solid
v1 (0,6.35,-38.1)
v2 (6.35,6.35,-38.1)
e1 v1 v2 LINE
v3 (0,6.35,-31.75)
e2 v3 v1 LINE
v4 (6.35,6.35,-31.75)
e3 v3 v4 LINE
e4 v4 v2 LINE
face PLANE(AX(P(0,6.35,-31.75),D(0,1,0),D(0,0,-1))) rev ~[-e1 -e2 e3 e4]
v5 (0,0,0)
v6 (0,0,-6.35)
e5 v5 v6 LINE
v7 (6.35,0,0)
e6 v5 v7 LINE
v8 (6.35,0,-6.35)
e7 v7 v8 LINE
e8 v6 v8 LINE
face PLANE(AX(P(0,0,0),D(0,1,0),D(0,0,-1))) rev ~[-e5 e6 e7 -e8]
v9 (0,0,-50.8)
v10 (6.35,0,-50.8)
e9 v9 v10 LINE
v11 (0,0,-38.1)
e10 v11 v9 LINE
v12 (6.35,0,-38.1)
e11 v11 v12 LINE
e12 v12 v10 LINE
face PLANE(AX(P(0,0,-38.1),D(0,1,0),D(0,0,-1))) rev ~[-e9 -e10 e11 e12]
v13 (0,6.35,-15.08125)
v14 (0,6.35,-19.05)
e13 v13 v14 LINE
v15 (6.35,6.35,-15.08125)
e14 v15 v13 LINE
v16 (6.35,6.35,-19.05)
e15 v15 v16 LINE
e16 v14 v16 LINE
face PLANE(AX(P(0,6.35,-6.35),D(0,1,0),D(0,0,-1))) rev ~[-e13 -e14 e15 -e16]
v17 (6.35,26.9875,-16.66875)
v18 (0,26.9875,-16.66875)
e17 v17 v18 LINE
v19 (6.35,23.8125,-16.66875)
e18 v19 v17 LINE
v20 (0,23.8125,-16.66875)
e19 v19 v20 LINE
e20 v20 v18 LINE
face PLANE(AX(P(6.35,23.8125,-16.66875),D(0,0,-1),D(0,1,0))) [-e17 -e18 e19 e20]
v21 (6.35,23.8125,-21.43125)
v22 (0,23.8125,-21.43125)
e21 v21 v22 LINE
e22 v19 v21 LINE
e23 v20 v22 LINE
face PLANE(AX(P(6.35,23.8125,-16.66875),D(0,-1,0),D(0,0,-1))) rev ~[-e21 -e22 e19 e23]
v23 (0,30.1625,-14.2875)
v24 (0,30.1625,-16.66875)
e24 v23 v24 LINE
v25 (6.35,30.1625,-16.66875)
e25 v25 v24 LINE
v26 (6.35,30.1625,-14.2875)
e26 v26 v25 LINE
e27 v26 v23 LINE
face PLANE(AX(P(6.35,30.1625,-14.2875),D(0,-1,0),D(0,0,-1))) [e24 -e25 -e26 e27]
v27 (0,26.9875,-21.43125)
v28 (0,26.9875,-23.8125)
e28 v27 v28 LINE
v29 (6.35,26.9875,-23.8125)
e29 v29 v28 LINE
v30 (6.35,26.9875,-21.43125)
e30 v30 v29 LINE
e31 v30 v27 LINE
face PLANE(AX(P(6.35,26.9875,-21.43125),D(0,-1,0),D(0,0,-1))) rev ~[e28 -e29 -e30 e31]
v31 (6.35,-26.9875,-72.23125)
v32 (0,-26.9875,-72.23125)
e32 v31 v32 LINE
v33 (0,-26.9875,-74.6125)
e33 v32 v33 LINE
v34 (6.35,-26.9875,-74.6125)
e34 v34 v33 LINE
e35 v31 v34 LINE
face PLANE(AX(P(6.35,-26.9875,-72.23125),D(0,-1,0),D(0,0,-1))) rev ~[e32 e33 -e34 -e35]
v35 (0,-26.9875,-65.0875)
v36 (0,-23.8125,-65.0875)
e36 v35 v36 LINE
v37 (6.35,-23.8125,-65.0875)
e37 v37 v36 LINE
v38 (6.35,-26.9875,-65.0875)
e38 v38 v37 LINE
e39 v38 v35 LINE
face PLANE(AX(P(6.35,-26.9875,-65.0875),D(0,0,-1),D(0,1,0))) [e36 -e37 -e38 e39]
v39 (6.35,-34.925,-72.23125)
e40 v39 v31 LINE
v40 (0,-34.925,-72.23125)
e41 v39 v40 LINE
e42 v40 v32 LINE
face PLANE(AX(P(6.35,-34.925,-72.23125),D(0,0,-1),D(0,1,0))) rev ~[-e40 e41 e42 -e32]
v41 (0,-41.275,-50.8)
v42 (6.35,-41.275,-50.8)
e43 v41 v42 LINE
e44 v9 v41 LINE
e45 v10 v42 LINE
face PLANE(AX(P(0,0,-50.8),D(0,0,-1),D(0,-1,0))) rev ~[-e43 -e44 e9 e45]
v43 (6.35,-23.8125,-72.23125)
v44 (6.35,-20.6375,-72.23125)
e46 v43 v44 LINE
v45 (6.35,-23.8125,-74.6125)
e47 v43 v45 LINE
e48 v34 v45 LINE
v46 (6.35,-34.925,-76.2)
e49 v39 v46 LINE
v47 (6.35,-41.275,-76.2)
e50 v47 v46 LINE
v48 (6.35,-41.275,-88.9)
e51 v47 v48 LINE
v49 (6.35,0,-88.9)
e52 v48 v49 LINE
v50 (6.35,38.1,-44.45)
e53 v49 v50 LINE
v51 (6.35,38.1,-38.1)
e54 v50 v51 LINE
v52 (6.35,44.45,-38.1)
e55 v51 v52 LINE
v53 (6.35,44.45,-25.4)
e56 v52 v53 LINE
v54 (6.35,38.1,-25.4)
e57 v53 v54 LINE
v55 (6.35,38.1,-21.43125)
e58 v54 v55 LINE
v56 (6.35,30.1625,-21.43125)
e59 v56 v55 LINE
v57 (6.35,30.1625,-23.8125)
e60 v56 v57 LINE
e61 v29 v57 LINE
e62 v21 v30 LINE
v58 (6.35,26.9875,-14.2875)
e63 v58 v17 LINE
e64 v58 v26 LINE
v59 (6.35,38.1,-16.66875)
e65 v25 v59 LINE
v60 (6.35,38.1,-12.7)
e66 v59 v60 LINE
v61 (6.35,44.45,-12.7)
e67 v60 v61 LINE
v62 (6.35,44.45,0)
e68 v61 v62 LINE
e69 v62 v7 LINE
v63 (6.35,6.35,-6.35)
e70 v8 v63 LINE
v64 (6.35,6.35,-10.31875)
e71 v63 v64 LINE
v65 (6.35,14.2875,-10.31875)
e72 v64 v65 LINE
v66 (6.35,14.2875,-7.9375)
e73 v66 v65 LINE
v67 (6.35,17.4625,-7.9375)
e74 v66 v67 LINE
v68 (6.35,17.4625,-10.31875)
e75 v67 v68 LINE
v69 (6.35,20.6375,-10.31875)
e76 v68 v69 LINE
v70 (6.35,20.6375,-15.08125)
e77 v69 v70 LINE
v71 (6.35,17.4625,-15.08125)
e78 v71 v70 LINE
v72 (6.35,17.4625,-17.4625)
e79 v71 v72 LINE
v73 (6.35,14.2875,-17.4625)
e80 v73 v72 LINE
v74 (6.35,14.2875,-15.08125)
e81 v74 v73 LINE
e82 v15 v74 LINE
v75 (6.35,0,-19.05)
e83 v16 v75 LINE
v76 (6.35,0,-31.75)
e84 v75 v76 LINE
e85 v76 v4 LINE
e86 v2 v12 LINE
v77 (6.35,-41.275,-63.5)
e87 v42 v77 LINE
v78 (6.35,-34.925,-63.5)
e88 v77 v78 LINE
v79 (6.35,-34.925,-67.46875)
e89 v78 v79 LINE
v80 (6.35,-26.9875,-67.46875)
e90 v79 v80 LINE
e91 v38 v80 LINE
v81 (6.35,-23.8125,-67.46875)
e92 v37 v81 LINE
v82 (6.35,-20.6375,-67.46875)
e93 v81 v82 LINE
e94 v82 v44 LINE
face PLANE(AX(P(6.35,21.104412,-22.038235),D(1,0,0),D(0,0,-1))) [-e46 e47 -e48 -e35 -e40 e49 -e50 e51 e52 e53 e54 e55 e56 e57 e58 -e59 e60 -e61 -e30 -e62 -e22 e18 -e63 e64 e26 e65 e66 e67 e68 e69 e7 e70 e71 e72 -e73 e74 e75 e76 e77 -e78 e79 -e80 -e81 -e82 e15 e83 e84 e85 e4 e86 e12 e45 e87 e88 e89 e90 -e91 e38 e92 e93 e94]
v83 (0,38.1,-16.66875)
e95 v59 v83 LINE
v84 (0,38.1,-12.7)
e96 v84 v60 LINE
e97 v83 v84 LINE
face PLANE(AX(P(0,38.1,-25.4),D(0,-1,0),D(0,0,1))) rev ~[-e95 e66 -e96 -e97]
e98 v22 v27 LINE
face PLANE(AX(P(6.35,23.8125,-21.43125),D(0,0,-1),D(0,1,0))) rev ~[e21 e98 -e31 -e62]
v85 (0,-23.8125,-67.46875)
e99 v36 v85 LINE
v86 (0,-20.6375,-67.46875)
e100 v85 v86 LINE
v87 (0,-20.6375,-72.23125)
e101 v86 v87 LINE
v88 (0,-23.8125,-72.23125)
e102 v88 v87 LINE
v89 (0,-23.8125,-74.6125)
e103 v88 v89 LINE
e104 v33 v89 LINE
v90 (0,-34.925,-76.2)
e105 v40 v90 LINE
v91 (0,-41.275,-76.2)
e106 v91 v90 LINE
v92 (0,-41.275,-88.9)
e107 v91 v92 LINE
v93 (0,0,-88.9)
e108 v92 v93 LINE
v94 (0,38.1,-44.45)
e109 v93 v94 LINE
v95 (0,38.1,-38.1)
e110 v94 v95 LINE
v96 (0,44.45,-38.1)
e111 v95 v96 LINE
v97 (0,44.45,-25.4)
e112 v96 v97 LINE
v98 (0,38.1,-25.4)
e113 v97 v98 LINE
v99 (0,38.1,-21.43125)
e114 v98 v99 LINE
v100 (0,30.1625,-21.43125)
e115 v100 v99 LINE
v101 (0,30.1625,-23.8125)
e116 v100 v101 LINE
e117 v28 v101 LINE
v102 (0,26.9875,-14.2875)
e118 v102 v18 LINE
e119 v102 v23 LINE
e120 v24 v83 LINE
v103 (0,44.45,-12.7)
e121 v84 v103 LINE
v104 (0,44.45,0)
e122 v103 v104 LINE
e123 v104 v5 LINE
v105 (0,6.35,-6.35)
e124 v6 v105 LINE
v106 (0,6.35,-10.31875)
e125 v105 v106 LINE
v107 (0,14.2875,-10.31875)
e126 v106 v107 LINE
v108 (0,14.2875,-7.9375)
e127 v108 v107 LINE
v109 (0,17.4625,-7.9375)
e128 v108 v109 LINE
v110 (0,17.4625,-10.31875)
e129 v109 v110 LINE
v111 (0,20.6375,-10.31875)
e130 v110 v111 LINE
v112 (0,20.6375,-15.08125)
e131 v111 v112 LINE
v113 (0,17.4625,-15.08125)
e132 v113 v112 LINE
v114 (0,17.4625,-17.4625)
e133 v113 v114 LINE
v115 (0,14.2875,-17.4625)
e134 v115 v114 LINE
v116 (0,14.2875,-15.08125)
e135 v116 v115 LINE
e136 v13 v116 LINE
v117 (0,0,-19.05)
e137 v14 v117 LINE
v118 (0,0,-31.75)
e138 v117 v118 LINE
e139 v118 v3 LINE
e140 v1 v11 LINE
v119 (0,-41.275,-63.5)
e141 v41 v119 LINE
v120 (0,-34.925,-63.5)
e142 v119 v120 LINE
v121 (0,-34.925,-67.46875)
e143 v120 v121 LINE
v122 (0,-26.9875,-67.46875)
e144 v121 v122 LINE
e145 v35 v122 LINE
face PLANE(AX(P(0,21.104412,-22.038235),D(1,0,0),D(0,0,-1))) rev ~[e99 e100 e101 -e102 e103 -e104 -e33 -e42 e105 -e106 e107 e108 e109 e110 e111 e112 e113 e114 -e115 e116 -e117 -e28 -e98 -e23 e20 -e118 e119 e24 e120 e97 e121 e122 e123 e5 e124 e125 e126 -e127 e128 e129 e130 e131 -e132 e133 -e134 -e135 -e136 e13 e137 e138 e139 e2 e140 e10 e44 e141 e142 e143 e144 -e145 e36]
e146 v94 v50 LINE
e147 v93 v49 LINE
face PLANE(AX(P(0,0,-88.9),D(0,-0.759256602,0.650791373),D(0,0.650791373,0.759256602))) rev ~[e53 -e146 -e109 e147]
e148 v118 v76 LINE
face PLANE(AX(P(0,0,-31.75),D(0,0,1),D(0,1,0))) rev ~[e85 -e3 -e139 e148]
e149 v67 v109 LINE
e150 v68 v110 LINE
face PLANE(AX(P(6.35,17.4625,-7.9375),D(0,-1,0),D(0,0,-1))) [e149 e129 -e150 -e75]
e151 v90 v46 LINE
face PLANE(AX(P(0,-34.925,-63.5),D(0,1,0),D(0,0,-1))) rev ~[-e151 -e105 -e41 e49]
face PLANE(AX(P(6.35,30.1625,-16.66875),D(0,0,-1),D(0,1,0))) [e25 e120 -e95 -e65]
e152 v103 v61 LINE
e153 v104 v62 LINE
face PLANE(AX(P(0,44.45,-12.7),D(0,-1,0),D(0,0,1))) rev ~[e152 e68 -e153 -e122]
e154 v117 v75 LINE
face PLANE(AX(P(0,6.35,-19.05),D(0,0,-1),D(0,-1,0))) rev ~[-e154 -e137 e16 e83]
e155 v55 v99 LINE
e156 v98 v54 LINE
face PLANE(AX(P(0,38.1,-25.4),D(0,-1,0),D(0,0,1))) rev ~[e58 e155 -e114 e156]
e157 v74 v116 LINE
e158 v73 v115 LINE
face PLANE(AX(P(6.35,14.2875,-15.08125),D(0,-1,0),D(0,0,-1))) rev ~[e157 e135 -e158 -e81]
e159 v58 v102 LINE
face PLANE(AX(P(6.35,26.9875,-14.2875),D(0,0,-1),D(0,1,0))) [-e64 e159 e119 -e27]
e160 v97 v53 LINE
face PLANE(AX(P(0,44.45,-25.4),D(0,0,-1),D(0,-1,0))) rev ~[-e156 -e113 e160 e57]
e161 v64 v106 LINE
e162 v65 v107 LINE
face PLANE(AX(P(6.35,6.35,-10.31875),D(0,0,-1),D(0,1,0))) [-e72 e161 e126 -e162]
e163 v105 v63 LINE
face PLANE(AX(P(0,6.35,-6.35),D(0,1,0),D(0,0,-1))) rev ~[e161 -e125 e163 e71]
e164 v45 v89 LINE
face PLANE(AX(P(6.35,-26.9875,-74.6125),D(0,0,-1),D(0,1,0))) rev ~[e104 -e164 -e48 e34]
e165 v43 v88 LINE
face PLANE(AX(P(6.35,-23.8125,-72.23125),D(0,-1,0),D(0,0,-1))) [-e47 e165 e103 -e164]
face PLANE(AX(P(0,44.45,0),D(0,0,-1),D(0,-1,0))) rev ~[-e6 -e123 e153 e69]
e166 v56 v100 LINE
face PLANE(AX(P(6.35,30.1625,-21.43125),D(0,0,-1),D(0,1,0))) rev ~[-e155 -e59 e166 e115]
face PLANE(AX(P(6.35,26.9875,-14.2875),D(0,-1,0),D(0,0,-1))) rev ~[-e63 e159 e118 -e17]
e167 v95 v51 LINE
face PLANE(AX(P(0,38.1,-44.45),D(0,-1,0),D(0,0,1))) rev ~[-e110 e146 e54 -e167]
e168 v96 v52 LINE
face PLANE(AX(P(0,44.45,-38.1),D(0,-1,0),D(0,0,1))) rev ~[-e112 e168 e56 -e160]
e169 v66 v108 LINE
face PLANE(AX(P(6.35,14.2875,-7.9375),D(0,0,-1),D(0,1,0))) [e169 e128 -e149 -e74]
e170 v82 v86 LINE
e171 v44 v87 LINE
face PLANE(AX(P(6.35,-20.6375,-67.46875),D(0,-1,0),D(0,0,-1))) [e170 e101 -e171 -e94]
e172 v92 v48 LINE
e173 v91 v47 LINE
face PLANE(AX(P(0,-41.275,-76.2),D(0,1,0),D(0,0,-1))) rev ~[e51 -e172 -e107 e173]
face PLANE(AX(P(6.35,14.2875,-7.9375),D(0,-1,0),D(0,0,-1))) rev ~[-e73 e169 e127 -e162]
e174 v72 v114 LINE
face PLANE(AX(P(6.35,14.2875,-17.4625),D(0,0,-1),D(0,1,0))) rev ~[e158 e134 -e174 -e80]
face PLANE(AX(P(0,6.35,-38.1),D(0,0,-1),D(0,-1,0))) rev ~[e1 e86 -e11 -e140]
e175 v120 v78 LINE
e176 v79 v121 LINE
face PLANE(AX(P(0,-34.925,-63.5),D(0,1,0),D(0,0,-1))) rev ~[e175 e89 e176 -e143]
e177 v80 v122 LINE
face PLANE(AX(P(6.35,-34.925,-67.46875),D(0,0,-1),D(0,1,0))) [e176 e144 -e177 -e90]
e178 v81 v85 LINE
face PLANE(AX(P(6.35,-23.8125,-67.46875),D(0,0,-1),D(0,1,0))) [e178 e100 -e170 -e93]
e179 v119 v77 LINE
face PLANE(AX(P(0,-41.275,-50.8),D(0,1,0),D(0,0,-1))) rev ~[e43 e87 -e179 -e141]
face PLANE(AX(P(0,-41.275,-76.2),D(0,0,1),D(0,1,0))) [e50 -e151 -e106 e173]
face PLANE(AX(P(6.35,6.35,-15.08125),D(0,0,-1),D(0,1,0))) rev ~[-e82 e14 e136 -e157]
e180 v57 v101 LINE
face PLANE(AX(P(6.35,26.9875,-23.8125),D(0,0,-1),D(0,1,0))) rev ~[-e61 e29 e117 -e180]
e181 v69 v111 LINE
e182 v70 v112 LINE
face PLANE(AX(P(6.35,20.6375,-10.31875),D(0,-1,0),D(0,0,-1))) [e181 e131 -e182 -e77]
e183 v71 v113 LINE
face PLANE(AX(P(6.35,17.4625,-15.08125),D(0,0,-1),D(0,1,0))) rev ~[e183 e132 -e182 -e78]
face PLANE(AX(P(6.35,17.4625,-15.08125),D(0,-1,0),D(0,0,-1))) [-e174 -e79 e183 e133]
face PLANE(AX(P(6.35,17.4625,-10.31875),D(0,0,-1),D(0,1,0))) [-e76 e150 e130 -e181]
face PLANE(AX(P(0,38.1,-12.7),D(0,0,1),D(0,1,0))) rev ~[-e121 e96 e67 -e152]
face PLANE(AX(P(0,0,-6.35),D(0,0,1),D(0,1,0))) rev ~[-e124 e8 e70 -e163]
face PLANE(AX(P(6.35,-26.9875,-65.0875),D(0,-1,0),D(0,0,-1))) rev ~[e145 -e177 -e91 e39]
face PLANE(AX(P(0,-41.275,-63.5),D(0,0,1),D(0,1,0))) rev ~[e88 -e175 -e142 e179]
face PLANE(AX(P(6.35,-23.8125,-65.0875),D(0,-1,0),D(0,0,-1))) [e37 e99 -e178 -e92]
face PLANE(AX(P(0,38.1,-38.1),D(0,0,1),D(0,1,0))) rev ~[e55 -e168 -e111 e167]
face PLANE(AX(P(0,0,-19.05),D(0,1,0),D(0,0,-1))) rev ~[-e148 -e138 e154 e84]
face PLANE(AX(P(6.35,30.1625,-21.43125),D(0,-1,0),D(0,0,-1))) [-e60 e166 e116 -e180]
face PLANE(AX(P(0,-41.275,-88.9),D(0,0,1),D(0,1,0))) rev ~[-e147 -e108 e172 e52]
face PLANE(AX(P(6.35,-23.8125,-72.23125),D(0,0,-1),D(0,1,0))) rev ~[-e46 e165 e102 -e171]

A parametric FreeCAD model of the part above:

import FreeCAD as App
import Part
import Sketcher

V = App.Vector
Q = App.Units.Quantity


def add_polygon(sketch, points):
    """Adds a closed chain of lines whose ends are joined by coincident constraints."""
    first, n = sketch.GeometryCount, len(points)
    for a, b in zip(points, points[1:] + points[:1]):
        sketch.addGeometry(Part.LineSegment(App.Vector(*a, 0), App.Vector(*b, 0)), False)
    for i in range(n):
        sketch.addConstraint(Sketcher.Constraint("Coincident", first + i, 2, first + (i + 1) % n, 1))

doc = App.newDocument("Part")
body = doc.addObject("PartDesign::Body", "Body")

sketch1 = body.newObject("Sketcher::SketchObject", "Sketch")
sketch1.AttachmentSupport = (doc.getObject("YZ_Plane"), [""])
sketch1.MapMode = "FlatFace"
add_polygon(sketch1, [(38, -13), (44, -13), (44, 0), (0, 0), (0, -6), (6, -6), (6, -19), (0, -19), (0, -32), (6, -32), (6, -38), (0, -38), (0, -51), (-41, -51), (-41, -64), (-35, -64), (-35, -76), (-41, -76), (-41, -89), (0, -89), (38, -44), (38, -38), (44, -38), (44, -25), (38, -25)])
sketch1.addConstraint([
    Sketcher.Constraint("Horizontal", 0),
    Sketcher.Constraint("Vertical", 1),
    Sketcher.Constraint("Horizontal", 2),
    Sketcher.Constraint("Vertical", 3),
    Sketcher.Constraint("Horizontal", 4),
    Sketcher.Constraint("Vertical", 5),
    Sketcher.Constraint("Horizontal", 6),
    Sketcher.Constraint("Vertical", 7),
    Sketcher.Constraint("Horizontal", 8),
    Sketcher.Constraint("Vertical", 9),
    Sketcher.Constraint("Horizontal", 10),
    Sketcher.Constraint("Vertical", 11),
    Sketcher.Constraint("Horizontal", 12),
    Sketcher.Constraint("Vertical", 13),
    Sketcher.Constraint("Horizontal", 14),
    Sketcher.Constraint("Vertical", 15),
    Sketcher.Constraint("Horizontal", 16),
    Sketcher.Constraint("Vertical", 17),
    Sketcher.Constraint("Horizontal", 18),
    Sketcher.Constraint("Vertical", 20),
    Sketcher.Constraint("Horizontal", 21),
    Sketcher.Constraint("Vertical", 22),
    Sketcher.Constraint("Horizontal", 23),
    Sketcher.Constraint("Vertical", 24),
    Sketcher.Constraint("Coincident", 2, 2, -1, 1),
    Sketcher.Constraint("PointOnObject", 6, 2, -2),
    Sketcher.Constraint("PointOnObject", 10, 2, -2),
    Sketcher.Constraint("PointOnObject", 18, 2, -2),
    Sketcher.Constraint("Horizontal", 10, 2, 20, 2),
    Sketcher.Constraint("Vertical", 5, 2, 8, 2),
    Sketcher.Constraint("Vertical", 13, 2, 16, 2),
    Sketcher.Constraint("Vertical", 1, 2, 21, 2),
    Sketcher.Constraint("Vertical", 20, 2, 23, 2),
    Sketcher.Constraint("Equal", 0, 4),
    Sketcher.Constraint("Equal", 10, 14),
    Sketcher.Constraint("Equal", 23, 3),
    Sketcher.Constraint("Equal", 1, 5),
    Sketcher.Constraint("Equal", 5, 7),
    Sketcher.Constraint("Equal", 3, 9),
    Sketcher.Constraint("Equal", 7, 11),
    Sketcher.Constraint("Equal", 11, 13),
    Sketcher.Constraint("Equal", 13, 15),
    Sketcher.Constraint("Equal", 15, 17),
    Sketcher.Constraint("Equal", 9, 20),
    Sketcher.Constraint("Equal", 17, 22),
    Sketcher.Constraint("Equal", 22, 24),
    Sketcher.Constraint("DistanceY", 1, 1, 1, 2, Q("0.5 in")),
    Sketcher.Constraint("DistanceX", 2, 2, 2, 1, Q("1.75 in")),
    Sketcher.Constraint("DistanceX", 12, 2, 12, 1, Q("1.625 in")),
])
pad1 = body.newObject("PartDesign::Pad", "Pad")
pad1.Profile = sketch1
pad1.Length = Q("0.25 in")

sketch2 = body.newObject("Sketcher::SketchObject", "Sketch001")
sketch2.AttachmentSupport = (doc.getObject("YZ_Plane"), [""])
sketch2.MapMode = "FlatFace"
sketch2.AttachmentOffset = App.Placement(V(0, 0, 0.25 * 25.4), App.Rotation())
add_polygon(sketch2, [(14.3, -10.3), (6.3, -10.3), (6.3, -15.1), (14.3, -15.1), (14.3, -17.5), (17.5, -17.5), (17.5, -15.1), (20.6, -15.1), (20.6, -10.3), (17.5, -10.3), (17.5, -7.9), (14.3, -7.9)])
add_polygon(sketch2, [(27, -16.7), (23.8, -16.7), (23.8, -21.4), (27, -21.4), (27, -23.8), (30.2, -23.8), (30.2, -21.4), (38.1, -21.4), (38.1, -16.7), (30.2, -16.7), (30.2, -14.3), (27, -14.3)])
add_polygon(sketch2, [(-27, -67.5), (-34.9, -67.5), (-34.9, -72.2), (-27, -72.2), (-27, -74.6), (-23.8, -74.6), (-23.8, -72.2), (-20.6, -72.2), (-20.6, -67.5), (-23.8, -67.5), (-23.8, -65.1), (-27, -65.1)])
sketch2.addConstraint([
    Sketcher.Constraint("Horizontal", 0),
    Sketcher.Constraint("Vertical", 1),
    Sketcher.Constraint("Horizontal", 2),
    Sketcher.Constraint("Vertical", 3),
    Sketcher.Constraint("Horizontal", 4),
    Sketcher.Constraint("Vertical", 5),
    Sketcher.Constraint("Horizontal", 6),
    Sketcher.Constraint("Vertical", 7),
    Sketcher.Constraint("Horizontal", 8),
    Sketcher.Constraint("Vertical", 9),
    Sketcher.Constraint("Horizontal", 10),
    Sketcher.Constraint("Vertical", 11),
    Sketcher.Constraint("Horizontal", 12),
    Sketcher.Constraint("Vertical", 13),
    Sketcher.Constraint("Horizontal", 14),
    Sketcher.Constraint("Vertical", 15),
    Sketcher.Constraint("Horizontal", 16),
    Sketcher.Constraint("Vertical", 17),
    Sketcher.Constraint("Horizontal", 18),
    Sketcher.Constraint("Vertical", 19),
    Sketcher.Constraint("Horizontal", 20),
    Sketcher.Constraint("Vertical", 21),
    Sketcher.Constraint("Horizontal", 22),
    Sketcher.Constraint("Vertical", 23),
    Sketcher.Constraint("Horizontal", 24),
    Sketcher.Constraint("Vertical", 25),
    Sketcher.Constraint("Horizontal", 26),
    Sketcher.Constraint("Vertical", 27),
    Sketcher.Constraint("Horizontal", 28),
    Sketcher.Constraint("Vertical", 29),
    Sketcher.Constraint("Horizontal", 30),
    Sketcher.Constraint("Vertical", 31),
    Sketcher.Constraint("Horizontal", 32),
    Sketcher.Constraint("Vertical", 33),
    Sketcher.Constraint("Horizontal", 34),
    Sketcher.Constraint("Vertical", 35),
    Sketcher.Constraint("Horizontal", 2, 2, 5, 2),
    Sketcher.Constraint("Horizontal", 0, 2, 7, 2),
    Sketcher.Constraint("Horizontal", 14, 2, 17, 2),
    Sketcher.Constraint("Horizontal", 12, 2, 19, 2),
    Sketcher.Constraint("Horizontal", 26, 2, 29, 2),
    Sketcher.Constraint("Horizontal", 24, 2, 31, 2),
    Sketcher.Constraint("Vertical", 5, 2, 8, 2),
    Sketcher.Constraint("Vertical", 3, 2, 10, 2),
    Sketcher.Constraint("Vertical", 17, 2, 20, 2),
    Sketcher.Constraint("Vertical", 15, 2, 22, 2),
    Sketcher.Constraint("Vertical", 29, 2, 32, 2),
    Sketcher.Constraint("Vertical", 27, 2, 34, 2),
    Sketcher.Constraint("Equal", 4, 6),
    Sketcher.Constraint("Equal", 10, 12),
    Sketcher.Constraint("Equal", 14, 16),
    Sketcher.Constraint("Equal", 2, 18),
    Sketcher.Constraint("Equal", 20, 24),
    Sketcher.Constraint("Equal", 22, 28),
    Sketcher.Constraint("Equal", 28, 30),
    Sketcher.Constraint("Equal", 5, 9),
    Sketcher.Constraint("Equal", 7, 13),
    Sketcher.Constraint("Equal", 11, 15),
    Sketcher.Constraint("Equal", 17, 21),
    Sketcher.Constraint("Equal", 19, 25),
    Sketcher.Constraint("Equal", 23, 27),
    Sketcher.Constraint("Equal", 29, 33),
    Sketcher.Constraint("DistanceX", -1, 1, 18, 2, Q("1.5 in")),
    Sketcher.Constraint("DistanceX", 0, 2, 0, 1, Q("0.3125 in")),
    Sketcher.Constraint("DistanceX", 4, 1, 4, 2, Q("0.125 in")),
    Sketcher.Constraint("DistanceY", 1, 2, 1, 1, Q("0.1875 in")),
    Sketcher.Constraint("DistanceY", 3, 2, 3, 1, Q("0.09375 in")),
    Sketcher.Constraint("DistanceX", -1, 1, 0, 2, Q("0.25 in")),
    Sketcher.Constraint("DistanceY", 12, 2, 7, 2, Q("0.25 in")),
    Sketcher.Constraint("DistanceY", 24, 2, 0, 2, Q("2.25 in")),
    Sketcher.Constraint("DistanceY", 0, 2, -1, 1, Q("0.40625 in")),
    Sketcher.Constraint("DistanceX", 24, 2, -1, 1, Q("1.375 in")),
])
pocket1 = body.newObject("PartDesign::Pocket", "Pocket")
pocket1.Profile = sketch2
pocket1.Length = Q("0.25 in")

doc.recompute()
